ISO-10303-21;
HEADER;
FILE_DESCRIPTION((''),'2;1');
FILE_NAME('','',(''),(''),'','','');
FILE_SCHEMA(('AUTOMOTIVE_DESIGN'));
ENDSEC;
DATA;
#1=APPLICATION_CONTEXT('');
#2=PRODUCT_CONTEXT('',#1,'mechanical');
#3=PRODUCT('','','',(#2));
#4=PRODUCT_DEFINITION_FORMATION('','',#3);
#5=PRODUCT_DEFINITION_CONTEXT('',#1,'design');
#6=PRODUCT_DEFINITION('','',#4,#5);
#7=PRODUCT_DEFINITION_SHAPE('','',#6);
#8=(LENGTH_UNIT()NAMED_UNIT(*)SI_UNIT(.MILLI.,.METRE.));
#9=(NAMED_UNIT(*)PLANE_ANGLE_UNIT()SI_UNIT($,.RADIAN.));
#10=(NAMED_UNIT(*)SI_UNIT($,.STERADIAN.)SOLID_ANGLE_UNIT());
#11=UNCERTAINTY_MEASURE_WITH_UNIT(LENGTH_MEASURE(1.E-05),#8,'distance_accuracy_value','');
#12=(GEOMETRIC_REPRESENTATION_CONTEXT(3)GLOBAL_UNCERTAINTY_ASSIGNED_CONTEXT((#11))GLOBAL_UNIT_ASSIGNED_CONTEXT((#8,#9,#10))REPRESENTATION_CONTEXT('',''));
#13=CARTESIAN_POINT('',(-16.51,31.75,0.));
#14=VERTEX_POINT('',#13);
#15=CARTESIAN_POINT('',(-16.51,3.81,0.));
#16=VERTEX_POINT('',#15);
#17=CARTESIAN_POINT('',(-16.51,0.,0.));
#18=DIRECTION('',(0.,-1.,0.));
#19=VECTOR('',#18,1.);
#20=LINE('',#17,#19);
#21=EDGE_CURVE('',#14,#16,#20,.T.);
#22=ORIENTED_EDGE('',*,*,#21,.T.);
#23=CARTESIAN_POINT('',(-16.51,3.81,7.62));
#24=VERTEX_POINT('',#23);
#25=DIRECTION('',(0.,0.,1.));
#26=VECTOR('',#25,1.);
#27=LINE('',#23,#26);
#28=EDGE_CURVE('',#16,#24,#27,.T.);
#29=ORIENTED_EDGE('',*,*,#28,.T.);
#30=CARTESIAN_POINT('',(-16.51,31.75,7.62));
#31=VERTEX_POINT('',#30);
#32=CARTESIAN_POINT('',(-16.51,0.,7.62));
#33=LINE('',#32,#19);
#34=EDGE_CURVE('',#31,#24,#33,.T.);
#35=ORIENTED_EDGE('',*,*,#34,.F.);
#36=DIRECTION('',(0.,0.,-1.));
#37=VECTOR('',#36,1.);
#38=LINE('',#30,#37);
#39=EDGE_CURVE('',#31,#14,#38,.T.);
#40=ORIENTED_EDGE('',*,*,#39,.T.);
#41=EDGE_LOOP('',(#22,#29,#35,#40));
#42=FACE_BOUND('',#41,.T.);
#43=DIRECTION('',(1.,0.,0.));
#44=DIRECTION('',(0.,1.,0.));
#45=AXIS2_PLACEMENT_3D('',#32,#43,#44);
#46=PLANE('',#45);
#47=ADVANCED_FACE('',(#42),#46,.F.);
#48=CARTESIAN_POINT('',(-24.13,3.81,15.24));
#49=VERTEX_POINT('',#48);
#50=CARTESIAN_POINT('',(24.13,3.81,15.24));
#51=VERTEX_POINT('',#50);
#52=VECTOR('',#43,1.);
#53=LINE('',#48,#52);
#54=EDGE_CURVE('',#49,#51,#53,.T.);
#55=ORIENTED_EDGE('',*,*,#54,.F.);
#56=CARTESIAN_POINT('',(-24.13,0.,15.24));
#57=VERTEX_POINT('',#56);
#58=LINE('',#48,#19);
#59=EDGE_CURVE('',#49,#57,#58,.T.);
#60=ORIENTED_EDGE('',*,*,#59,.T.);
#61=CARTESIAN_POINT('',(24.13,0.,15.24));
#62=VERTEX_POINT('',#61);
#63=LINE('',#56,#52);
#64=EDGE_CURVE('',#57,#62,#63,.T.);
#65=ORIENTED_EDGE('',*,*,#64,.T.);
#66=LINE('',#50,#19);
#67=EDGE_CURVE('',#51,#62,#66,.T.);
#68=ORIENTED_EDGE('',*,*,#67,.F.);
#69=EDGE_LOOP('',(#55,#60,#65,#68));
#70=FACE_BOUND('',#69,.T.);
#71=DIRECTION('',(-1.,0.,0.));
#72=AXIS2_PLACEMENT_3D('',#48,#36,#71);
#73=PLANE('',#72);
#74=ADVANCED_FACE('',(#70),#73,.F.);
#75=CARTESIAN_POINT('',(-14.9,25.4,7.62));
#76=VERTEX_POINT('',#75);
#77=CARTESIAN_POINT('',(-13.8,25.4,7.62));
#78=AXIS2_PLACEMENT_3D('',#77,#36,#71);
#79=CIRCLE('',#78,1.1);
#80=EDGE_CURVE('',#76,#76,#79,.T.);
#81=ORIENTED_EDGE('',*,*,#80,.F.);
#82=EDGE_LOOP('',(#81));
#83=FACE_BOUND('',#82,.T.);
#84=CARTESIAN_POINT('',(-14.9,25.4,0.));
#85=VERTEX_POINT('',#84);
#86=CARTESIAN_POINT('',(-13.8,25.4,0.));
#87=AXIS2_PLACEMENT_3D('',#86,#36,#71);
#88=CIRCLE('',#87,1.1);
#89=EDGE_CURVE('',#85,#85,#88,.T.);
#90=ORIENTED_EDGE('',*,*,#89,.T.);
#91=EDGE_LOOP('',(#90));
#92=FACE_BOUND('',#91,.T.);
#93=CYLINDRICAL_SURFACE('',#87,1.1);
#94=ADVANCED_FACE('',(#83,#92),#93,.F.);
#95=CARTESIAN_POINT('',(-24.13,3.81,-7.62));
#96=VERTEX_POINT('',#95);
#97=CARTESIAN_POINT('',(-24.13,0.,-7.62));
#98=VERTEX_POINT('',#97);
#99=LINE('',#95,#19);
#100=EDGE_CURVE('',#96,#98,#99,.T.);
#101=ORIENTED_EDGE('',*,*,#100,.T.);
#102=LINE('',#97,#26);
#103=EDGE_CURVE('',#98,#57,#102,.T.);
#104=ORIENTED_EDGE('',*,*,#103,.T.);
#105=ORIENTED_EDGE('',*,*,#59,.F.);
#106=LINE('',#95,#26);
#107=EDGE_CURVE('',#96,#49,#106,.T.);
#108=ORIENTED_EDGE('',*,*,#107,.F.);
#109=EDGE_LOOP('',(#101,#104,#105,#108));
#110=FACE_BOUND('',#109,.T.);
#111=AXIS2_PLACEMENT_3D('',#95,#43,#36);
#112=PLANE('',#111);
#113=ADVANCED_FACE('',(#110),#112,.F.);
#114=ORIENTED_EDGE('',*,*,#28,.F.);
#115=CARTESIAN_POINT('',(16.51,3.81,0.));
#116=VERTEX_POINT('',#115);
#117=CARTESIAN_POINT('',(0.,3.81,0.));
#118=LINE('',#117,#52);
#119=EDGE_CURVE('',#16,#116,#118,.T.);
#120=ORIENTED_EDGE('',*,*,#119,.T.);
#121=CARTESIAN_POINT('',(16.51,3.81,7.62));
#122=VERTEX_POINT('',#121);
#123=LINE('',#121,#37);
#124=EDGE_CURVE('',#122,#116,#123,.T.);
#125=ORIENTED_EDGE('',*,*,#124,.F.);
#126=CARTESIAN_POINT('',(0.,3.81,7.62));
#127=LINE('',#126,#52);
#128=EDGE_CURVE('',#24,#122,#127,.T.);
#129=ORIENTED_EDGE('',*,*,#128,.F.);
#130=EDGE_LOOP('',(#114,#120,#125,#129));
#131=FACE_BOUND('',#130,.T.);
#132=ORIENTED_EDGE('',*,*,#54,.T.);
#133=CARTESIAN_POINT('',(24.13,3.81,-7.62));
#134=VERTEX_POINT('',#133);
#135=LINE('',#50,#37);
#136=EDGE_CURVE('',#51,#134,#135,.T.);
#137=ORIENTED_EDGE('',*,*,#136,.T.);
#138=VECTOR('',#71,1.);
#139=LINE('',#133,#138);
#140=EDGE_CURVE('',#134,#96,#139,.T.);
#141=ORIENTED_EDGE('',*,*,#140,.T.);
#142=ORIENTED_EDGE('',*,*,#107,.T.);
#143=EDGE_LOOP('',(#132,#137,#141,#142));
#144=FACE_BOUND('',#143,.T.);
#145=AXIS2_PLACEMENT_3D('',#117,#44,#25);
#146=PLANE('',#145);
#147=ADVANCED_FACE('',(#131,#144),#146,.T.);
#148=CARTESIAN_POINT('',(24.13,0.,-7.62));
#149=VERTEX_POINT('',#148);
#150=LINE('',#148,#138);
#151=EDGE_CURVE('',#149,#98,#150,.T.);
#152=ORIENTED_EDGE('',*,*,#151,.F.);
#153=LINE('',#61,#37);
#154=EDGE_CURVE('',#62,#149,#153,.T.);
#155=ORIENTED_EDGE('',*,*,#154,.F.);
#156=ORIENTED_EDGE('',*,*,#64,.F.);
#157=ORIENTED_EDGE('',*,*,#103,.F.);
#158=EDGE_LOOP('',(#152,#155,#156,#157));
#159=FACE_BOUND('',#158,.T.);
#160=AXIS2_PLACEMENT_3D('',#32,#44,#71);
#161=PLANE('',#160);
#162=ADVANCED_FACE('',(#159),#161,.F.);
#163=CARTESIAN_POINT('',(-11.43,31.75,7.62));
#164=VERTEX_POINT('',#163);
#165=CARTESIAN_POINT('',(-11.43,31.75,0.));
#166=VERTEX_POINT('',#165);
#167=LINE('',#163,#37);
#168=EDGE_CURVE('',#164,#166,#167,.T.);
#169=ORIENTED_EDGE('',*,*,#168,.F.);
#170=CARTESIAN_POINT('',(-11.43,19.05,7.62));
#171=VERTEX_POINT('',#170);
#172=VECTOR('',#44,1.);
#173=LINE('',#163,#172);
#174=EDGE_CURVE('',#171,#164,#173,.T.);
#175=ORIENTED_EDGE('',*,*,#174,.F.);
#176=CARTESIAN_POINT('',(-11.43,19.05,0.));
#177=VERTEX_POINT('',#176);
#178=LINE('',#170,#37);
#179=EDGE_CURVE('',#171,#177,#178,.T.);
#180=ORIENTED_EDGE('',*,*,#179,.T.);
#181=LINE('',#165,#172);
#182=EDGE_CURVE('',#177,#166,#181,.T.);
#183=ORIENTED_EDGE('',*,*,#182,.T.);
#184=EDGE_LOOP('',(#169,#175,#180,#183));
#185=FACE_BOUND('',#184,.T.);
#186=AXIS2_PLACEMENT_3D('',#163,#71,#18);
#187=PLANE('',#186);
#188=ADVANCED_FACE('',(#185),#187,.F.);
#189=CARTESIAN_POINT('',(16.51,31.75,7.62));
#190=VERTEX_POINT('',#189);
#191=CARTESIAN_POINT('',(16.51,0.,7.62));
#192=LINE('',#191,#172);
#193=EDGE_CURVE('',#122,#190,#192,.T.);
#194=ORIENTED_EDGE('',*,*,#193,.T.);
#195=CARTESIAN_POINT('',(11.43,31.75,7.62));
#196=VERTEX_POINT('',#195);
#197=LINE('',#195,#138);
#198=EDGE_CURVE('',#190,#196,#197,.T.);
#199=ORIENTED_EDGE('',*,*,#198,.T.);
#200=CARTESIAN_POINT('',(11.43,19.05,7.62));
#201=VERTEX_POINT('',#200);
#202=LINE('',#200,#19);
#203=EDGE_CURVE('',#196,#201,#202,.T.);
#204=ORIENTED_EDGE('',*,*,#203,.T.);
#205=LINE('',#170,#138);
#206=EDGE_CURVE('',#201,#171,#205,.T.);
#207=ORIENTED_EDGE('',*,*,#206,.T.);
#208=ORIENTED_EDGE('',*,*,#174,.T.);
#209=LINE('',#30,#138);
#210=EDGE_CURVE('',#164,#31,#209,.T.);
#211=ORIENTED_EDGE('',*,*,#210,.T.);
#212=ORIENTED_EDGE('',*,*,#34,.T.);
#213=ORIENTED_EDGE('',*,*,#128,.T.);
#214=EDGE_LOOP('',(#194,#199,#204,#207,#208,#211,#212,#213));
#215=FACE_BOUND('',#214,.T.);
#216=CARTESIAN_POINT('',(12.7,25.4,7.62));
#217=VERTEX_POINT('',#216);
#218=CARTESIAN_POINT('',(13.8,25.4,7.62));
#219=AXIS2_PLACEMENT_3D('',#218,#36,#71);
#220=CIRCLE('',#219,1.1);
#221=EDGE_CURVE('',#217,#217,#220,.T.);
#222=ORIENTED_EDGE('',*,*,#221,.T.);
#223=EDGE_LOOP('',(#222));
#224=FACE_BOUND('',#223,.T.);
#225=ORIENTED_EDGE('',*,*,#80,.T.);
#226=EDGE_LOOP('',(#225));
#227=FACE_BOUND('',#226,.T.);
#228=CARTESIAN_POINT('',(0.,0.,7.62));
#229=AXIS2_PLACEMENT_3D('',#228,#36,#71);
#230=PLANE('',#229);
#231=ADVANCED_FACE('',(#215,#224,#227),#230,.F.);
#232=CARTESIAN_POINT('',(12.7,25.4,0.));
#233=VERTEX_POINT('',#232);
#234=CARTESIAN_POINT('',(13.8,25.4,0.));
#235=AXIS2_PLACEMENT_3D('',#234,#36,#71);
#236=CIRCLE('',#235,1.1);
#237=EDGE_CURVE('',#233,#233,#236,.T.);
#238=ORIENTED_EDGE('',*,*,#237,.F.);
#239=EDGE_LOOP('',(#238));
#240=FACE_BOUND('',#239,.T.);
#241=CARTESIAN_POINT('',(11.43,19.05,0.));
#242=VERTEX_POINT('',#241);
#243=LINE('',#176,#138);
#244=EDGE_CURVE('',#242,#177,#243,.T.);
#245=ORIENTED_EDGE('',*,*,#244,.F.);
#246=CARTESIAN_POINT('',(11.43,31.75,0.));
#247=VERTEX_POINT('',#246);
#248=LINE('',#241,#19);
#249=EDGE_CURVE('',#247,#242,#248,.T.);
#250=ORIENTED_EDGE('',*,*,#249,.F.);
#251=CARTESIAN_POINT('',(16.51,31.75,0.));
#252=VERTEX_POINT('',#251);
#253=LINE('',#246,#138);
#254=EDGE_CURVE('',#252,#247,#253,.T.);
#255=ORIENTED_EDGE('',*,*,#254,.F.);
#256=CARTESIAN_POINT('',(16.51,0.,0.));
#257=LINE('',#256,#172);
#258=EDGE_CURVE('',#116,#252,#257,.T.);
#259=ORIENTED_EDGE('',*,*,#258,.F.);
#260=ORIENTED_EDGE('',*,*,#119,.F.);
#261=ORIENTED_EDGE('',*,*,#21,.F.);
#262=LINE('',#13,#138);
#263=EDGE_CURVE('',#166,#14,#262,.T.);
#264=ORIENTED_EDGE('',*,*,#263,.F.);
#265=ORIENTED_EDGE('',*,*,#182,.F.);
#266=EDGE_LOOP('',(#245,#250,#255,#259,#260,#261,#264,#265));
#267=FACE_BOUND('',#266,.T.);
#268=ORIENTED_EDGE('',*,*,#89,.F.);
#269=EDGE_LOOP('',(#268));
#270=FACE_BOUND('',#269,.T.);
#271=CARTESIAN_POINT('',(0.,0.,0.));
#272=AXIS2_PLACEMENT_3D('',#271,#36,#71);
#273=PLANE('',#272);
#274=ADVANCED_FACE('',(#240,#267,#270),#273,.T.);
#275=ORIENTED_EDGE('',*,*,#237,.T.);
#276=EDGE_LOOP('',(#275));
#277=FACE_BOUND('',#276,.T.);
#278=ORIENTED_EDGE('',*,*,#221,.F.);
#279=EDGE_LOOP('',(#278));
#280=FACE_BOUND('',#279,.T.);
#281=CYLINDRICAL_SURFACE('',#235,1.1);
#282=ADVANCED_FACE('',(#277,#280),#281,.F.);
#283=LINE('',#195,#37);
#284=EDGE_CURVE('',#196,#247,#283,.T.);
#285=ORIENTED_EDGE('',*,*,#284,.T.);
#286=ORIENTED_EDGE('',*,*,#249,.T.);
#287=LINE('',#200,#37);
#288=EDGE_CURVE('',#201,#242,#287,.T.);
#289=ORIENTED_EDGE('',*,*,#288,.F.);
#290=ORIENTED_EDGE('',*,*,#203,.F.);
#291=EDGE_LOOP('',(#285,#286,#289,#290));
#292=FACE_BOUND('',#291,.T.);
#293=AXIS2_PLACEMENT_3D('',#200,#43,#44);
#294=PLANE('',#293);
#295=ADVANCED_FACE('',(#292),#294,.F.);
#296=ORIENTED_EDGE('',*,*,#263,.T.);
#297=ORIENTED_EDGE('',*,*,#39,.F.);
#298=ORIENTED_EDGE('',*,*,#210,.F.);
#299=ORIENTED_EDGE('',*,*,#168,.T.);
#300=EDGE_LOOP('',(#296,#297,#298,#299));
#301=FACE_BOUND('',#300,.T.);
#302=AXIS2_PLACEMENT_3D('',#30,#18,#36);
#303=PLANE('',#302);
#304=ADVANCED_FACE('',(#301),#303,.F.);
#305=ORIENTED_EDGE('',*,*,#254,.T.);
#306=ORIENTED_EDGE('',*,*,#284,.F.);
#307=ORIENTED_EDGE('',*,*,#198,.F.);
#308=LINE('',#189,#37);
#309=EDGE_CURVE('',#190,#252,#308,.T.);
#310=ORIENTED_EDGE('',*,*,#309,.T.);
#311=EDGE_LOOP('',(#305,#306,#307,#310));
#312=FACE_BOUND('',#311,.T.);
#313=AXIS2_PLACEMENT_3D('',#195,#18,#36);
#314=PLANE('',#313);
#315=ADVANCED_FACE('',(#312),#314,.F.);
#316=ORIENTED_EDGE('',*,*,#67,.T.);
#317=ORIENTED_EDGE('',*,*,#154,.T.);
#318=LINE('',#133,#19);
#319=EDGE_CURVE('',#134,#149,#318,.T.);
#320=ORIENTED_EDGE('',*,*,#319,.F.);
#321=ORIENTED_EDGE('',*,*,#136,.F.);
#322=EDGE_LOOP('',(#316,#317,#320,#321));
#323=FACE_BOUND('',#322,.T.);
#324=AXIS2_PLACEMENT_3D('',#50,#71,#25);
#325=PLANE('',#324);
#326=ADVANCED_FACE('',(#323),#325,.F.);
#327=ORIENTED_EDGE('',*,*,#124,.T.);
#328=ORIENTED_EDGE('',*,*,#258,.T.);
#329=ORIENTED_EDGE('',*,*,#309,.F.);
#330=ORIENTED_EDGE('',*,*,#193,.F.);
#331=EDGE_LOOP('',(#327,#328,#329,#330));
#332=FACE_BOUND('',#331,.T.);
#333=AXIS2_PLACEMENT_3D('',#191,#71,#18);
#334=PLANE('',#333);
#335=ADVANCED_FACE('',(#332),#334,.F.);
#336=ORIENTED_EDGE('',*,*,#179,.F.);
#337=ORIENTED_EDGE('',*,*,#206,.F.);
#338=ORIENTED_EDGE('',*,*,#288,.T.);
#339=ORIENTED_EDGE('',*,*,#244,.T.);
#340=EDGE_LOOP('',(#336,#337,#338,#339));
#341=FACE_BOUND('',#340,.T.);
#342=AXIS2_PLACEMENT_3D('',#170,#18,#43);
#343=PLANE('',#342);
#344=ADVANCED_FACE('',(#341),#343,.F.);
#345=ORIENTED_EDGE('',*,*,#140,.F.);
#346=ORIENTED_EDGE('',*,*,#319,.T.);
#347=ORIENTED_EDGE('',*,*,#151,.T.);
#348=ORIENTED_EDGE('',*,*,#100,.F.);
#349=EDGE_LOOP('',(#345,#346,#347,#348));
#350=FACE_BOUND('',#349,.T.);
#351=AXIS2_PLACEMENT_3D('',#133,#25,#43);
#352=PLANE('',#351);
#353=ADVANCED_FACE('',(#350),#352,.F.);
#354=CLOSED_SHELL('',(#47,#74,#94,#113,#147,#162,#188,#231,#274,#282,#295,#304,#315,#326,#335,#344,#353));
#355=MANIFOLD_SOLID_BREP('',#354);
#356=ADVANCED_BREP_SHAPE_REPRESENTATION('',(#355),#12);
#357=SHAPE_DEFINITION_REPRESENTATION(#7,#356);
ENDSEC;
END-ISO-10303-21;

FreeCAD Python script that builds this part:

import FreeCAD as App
import Part
import Sketcher
from FreeCAD import Vector
Q = App.Units.Quantity

doc = App.newDocument("Part")
body = doc.addObject("PartDesign::Body", "Body")

# Sketch on XY plane
sketch1 = body.newObject("Sketcher::SketchObject", "Sketch")
sketch1.AttachmentSupport = (doc.getObject("XY_Plane"), [""])
sketch1.MapMode = "FlatFace"
sketch1.addGeometry(Part.LineSegment(Vector(11, 19, 0), Vector(-11, 19, 0)), False)
sketch1.addGeometry(Part.LineSegment(Vector(-11, 19, 0), Vector(-11, 32, 0)), False)
sketch1.addGeometry(Part.LineSegment(Vector(-11, 32, 0), Vector(-17, 32, 0)), False)
sketch1.addGeometry(Part.LineSegment(Vector(-17, 32, 0), Vector(-17, 0, 0)), False)
sketch1.addGeometry(Part.LineSegment(Vector(-17, 0, 0), Vector(17, 0, 0)), False)
sketch1.addGeometry(Part.LineSegment(Vector(17, 0, 0), Vector(17, 32, 0)), False)
sketch1.addGeometry(Part.LineSegment(Vector(17, 32, 0), Vector(11, 32, 0)), False)
sketch1.addGeometry(Part.LineSegment(Vector(11, 32, 0), Vector(11, 19, 0)), False)
sketch1.addConstraint(Sketcher.Constraint("Coincident", 0, 2, 1, 1))
sketch1.addConstraint(Sketcher.Constraint("Coincident", 1, 2, 2, 1))
sketch1.addConstraint(Sketcher.Constraint("Coincident", 2, 2, 3, 1))
sketch1.addConstraint(Sketcher.Constraint("Coincident", 3, 2, 4, 1))
sketch1.addConstraint(Sketcher.Constraint("Coincident", 4, 2, 5, 1))
sketch1.addConstraint(Sketcher.Constraint("Coincident", 5, 2, 6, 1))
sketch1.addConstraint(Sketcher.Constraint("Coincident", 6, 2, 7, 1))
sketch1.addConstraint(Sketcher.Constraint("Coincident", 7, 2, 0, 1))
sketch1.addConstraint(Sketcher.Constraint("Horizontal", 0))
sketch1.addConstraint(Sketcher.Constraint("Vertical", 1))
sketch1.addConstraint(Sketcher.Constraint("Horizontal", 2))
sketch1.addConstraint(Sketcher.Constraint("Vertical", 3))
sketch1.addConstraint(Sketcher.Constraint("Horizontal", 4))
sketch1.addConstraint(Sketcher.Constraint("Vertical", 5))
sketch1.addConstraint(Sketcher.Constraint("Horizontal", 6))
sketch1.addConstraint(Sketcher.Constraint("Vertical", 7))
sketch1.addConstraint(Sketcher.Constraint("Symmetric", 3, 2, 4, 2, -1, 1))
sketch1.addConstraint(Sketcher.Constraint("Symmetric", 1, 2, 6, 2, -2))
sketch1.addConstraint(Sketcher.Constraint("DistanceX", 0, 2, 0, 1, Q("0.9 in")))
sketch1.addConstraint(Sketcher.Constraint("DistanceX", 2, 2, 2, 1, Q("0.2 in")))
sketch1.addConstraint(Sketcher.Constraint("DistanceY", 1, 1, 1, 2, Q("0.5 in")))
sketch1.addConstraint(Sketcher.Constraint("DistanceY", 3, 2, 3, 1, Q("1.25 in")))
pad1 = body.newObject("PartDesign::Pad", "Pad")
pad1.Profile = sketch1
pad1.Length = Q("0.3 in")

# Sketch on XZ plane
sketch2 = body.newObject("Sketcher::SketchObject", "Sketch001")
sketch2.AttachmentSupport = (doc.getObject("XZ_Plane"), [""])
sketch2.MapMode = "FlatFace"
sketch2.addGeometry(Part.LineSegment(Vector(-24, -8, 0), Vector(-24, 15, 0)), False)
sketch2.addGeometry(Part.LineSegment(Vector(-24, 15, 0), Vector(24, 15, 0)), False)
sketch2.addGeometry(Part.LineSegment(Vector(24, 15, 0), Vector(24, -8, 0)), False)
sketch2.addGeometry(Part.LineSegment(Vector(24, -8, 0), Vector(-24, -8, 0)), False)
sketch2.addConstraint(Sketcher.Constraint("Coincident", 0, 2, 1, 1))
sketch2.addConstraint(Sketcher.Constraint("Coincident", 1, 2, 2, 1))
sketch2.addConstraint(Sketcher.Constraint("Coincident", 2, 2, 3, 1))
sketch2.addConstraint(Sketcher.Constraint("Coincident", 3, 2, 0, 1))
sketch2.addConstraint(Sketcher.Constraint("Vertical", 0))
sketch2.addConstraint(Sketcher.Constraint("Horizontal", 1))
sketch2.addConstraint(Sketcher.Constraint("Vertical", 2))
sketch2.addConstraint(Sketcher.Constraint("Horizontal", 3))
sketch2.addConstraint(Sketcher.Constraint("DistanceX", 1, 1, 1, 2, Q("1.9 in")))
sketch2.addConstraint(Sketcher.Constraint("DistanceY", 0, 1, 0, 2, Q("0.9 in")))
sketch2.addConstraint(Sketcher.Constraint("DistanceY", -1, 1, 0, 2, Q("0.6 in")))
sketch2.addConstraint(Sketcher.Constraint("DistanceX", 0, 2, -1, 1, Q("0.95 in")))
pad2 = body.newObject("PartDesign::Pad", "Pad001")
pad2.Profile = sketch2
pad2.Length = Q("0.15 in")
pad2.Reversed = True

# Sketch on XY plane
sketch3 = body.newObject("Sketcher::SketchObject", "Sketch002")
sketch3.AttachmentSupport = (doc.getObject("XY_Plane"), [""])
sketch3.MapMode = "FlatFace"
sketch3.addGeometry(Part.Circle(Vector(13.8, 25.4, 0), Vector(0, 0, 1), 1.1), False)
sketch3.addGeometry(Part.Circle(Vector(-13.8, 25.4, 0), Vector(0, 0, 1), 1.1), False)
sketch3.addConstraint(Sketcher.Constraint("Equal", 0, 1))
sketch3.addConstraint(Sketcher.Constraint("Symmetric", 0, 3, 1, 3, -2))
sketch3.addConstraint(Sketcher.Constraint("DistanceY", -1, 1, 0, 3, Q("1 in")))
sketch3.addConstraint(Sketcher.Constraint("Diameter", 0, Q("2.2 mm")))
sketch3.addConstraint(Sketcher.Constraint("DistanceX", -1, 1, 0, 3, Q("13.8 mm")))
doc.recompute()
hole = body.newObject("PartDesign::Hole", "Hole")
hole.Profile = sketch3
hole.ThreadType = "None"
hole.Diameter = 2.2
hole.DepthType = "ThroughAll"
hole.Reversed = True

doc.recompute()
